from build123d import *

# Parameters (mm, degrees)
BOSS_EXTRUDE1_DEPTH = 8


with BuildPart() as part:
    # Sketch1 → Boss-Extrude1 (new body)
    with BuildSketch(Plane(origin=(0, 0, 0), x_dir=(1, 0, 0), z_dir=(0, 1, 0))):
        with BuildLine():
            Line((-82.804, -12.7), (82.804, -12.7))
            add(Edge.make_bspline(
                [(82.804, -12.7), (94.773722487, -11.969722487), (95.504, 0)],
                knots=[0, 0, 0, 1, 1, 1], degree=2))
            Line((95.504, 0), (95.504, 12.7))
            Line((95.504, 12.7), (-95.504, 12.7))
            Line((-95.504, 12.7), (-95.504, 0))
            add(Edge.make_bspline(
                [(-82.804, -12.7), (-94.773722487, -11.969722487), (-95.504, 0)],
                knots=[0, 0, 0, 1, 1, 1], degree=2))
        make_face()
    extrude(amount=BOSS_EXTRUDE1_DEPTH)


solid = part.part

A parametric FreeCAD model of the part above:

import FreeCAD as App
import Part
import Sketcher
from FreeCAD import Vector
Q = App.Units.Quantity

doc = App.newDocument("Part")
body = doc.addObject("PartDesign::Body", "Body")

sketch1 = body.newObject("Sketcher::SketchObject", "Sketch")
sketch1.AttachmentSupport = (doc.getObject("XZ_Plane"), [""])
sketch1.MapMode = "FlatFace"
sketch1.addGeometry(Part.LineSegment(Vector(-82.804, 12.7, 0), Vector(82.804, 12.7, 0)), False)
sketch1.addGeometry(Part.BSplineCurve([Vector(82.804, 12.7, 0), Vector(94.773722, 11.969722, 0), Vector(95.504, 0, 0)], [3, 3], [0, 1], False, 2, [1, 1, 1], False), False)
sketch1.addGeometry(Part.LineSegment(Vector(95.504, 0, 0), Vector(95.504, -12.7, 0)), False)
sketch1.addGeometry(Part.LineSegment(Vector(95.504, -12.7, 0), Vector(-95.504, -12.7, 0)), False)
sketch1.addGeometry(Part.LineSegment(Vector(-95.504, -12.7, 0), Vector(-95.504, 0, 0)), False)
sketch1.addGeometry(Part.BSplineCurve([Vector(-82.804, 12.7, 0), Vector(-94.773722, 11.969722, 0), Vector(-95.504, 0, 0)], [3, 3], [0, 1], False, 2, [1, 1, 1], False), False)
sketch1.addConstraint(Sketcher.Constraint("Block", 1))
sketch1.addConstraint(Sketcher.Constraint("Block", 5))
sketch1.addConstraint(Sketcher.Constraint("Coincident", 0, 2, 1, 1))
sketch1.addConstraint(Sketcher.Constraint("Coincident", 1, 2, 2, 1))
sketch1.addConstraint(Sketcher.Constraint("Coincident", 2, 2, 3, 1))
sketch1.addConstraint(Sketcher.Constraint("Coincident", 3, 2, 4, 1))
sketch1.addConstraint(Sketcher.Constraint("Coincident", 4, 2, 5, 2))
sketch1.addConstraint(Sketcher.Constraint("Coincident", 5, 1, 0, 1))
sketch1.addConstraint(Sketcher.Constraint("Vertical", 2))
sketch1.addConstraint(Sketcher.Constraint("Horizontal", 3))
sketch1.addConstraint(Sketcher.Constraint("Vertical", 4))
sketch1.addConstraint(Sketcher.Constraint("DistanceY", 2, 2, 2, 1, Q("0.5 in")))
pad1 = body.newObject("PartDesign::Pad", "Pad")
pad1.Profile = sketch1
pad1.Length = 8
pad1.Reversed = True

doc.recompute()
